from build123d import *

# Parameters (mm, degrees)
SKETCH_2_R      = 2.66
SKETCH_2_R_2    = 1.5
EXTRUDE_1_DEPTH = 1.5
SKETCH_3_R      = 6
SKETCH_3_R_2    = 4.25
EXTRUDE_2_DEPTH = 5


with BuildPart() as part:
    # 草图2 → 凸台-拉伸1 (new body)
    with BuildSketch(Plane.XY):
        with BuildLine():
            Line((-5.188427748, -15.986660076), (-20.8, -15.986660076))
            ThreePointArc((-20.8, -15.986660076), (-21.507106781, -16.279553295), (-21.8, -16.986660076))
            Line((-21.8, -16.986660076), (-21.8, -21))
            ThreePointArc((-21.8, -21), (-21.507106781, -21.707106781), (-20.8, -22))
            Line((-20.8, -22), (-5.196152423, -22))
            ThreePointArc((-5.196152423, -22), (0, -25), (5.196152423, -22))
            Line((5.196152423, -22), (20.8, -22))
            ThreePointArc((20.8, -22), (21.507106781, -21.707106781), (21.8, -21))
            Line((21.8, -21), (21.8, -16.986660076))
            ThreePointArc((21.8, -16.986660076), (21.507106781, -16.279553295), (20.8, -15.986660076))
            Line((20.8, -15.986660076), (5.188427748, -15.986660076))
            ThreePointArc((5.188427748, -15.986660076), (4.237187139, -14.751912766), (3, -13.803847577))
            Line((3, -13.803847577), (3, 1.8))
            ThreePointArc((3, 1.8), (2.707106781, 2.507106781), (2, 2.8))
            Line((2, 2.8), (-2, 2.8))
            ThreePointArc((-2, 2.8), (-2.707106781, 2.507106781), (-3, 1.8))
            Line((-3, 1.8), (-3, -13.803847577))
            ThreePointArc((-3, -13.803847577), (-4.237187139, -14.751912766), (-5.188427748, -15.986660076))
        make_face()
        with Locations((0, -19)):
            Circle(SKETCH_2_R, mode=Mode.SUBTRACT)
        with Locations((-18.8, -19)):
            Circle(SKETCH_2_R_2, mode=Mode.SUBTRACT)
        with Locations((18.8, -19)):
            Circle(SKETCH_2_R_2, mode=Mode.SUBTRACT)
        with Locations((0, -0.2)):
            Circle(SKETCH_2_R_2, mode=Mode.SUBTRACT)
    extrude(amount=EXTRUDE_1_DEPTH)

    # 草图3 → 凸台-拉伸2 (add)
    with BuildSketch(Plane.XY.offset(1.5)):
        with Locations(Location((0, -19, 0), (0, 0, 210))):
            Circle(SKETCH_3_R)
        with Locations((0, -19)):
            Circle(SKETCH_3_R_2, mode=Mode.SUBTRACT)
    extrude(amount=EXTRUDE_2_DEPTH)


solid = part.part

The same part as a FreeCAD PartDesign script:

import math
import FreeCAD as App
import Part
import Sketcher
Q = App.Units.Quantity

doc = App.newDocument("Part")
body = doc.addObject("PartDesign::Body", "Body")

# Sketch on XY plane
sketch1 = body.newObject("Sketcher::SketchObject", "Sketch")
sketch1.AttachmentSupport = (doc.getObject("XY_Plane"), [""])
sketch1.MapMode = "FlatFace"
sketch1.addGeometry([
    Part.LineSegment(App.Vector(-5.2, -16, 0), App.Vector(-20.8, -16, 0)),  # 0
    Part.ArcOfCircle(Part.Circle(App.Vector(-20.8, -17, 0), App.Vector(0, 0, 1), 1), math.radians(90), math.radians(180)),  # 1
    Part.LineSegment(App.Vector(-21.8, -17, 0), App.Vector(-21.8, -21, 0)),  # 2
    Part.ArcOfCircle(Part.Circle(App.Vector(-20.8, -21, 0), App.Vector(0, 0, 1), 1), math.radians(-180), math.radians(-90)),  # 3
    Part.LineSegment(App.Vector(-20.8, -22, 0), App.Vector(-5.2, -22, 0)),  # 4
    Part.ArcOfCircle(Part.Circle(App.Vector(0, -19, 0), App.Vector(0, 0, 1), 6), math.radians(-150), math.radians(-30)),  # 5
    Part.LineSegment(App.Vector(5.2, -22, 0), App.Vector(20.8, -22, 0)),  # 6
    Part.ArcOfCircle(Part.Circle(App.Vector(20.8, -21, 0), App.Vector(0, 0, 1), 1), math.radians(-90), math.radians(0)),  # 7
    Part.LineSegment(App.Vector(21.8, -21, 0), App.Vector(21.8, -17, 0)),  # 8
    Part.ArcOfCircle(Part.Circle(App.Vector(20.8, -17, 0), App.Vector(0, 0, 1), 1), math.radians(0), math.radians(90)),  # 9
    Part.LineSegment(App.Vector(20.8, -16, 0), App.Vector(5.2, -16, 0)),  # 10
    Part.ArcOfCircle(Part.Circle(App.Vector(0, -19, 0), App.Vector(0, 0, 1), 6), math.radians(30), math.radians(60)),  # 11
    Part.LineSegment(App.Vector(3, -13.8, 0), App.Vector(3, 1.8, 0)),  # 12
    Part.ArcOfCircle(Part.Circle(App.Vector(2, 1.8, 0), App.Vector(0, 0, 1), 1), math.radians(0), math.radians(90)),  # 13
    Part.LineSegment(App.Vector(2, 2.8, 0), App.Vector(-2, 2.8, 0)),  # 14
    Part.ArcOfCircle(Part.Circle(App.Vector(-2, 1.8, 0), App.Vector(0, 0, 1), 1), math.radians(90), math.radians(180)),  # 15
    Part.LineSegment(App.Vector(-3, 1.8, 0), App.Vector(-3, -13.8, 0)),  # 16
    Part.ArcOfCircle(Part.Circle(App.Vector(0, -19, 0), App.Vector(0, 0, 1), 6), math.radians(120), math.radians(150)),  # 17
    Part.Circle(App.Vector(-18.8, -19, 0), App.Vector(0, 0, 1), 1.5),  # 18
    Part.Circle(App.Vector(0, -19, 0), App.Vector(0, 0, 1), 2.7),  # 19
    Part.Circle(App.Vector(18.8, -19, 0), App.Vector(0, 0, 1), 1.5),  # 20
    Part.Circle(App.Vector(0, -0.2, 0), App.Vector(0, 0, 1), 1.5),  # 21
], False)
sketch1.addConstraint([
    Sketcher.Constraint("Tangent", 0, 2, 1, 1),
    Sketcher.Constraint("Tangent", 1, 2, 2, 1),
    Sketcher.Constraint("Tangent", 2, 2, 3, 1),
    Sketcher.Constraint("Tangent", 3, 2, 4, 1),
    Sketcher.Constraint("Coincident", 4, 2, 5, 1),
    Sketcher.Constraint("Coincident", 5, 2, 6, 1),
    Sketcher.Constraint("Tangent", 6, 2, 7, 1),
    Sketcher.Constraint("Tangent", 7, 2, 8, 1),
    Sketcher.Constraint("Tangent", 8, 2, 9, 1),
    Sketcher.Constraint("Tangent", 9, 2, 10, 1),
    Sketcher.Constraint("Coincident", 10, 2, 11, 1),
    Sketcher.Constraint("Coincident", 11, 2, 12, 1),
    Sketcher.Constraint("Tangent", 12, 2, 13, 1),
    Sketcher.Constraint("Tangent", 13, 2, 14, 1),
    Sketcher.Constraint("Tangent", 14, 2, 15, 1),
    Sketcher.Constraint("Tangent", 15, 2, 16, 1),
    Sketcher.Constraint("Coincident", 16, 2, 17, 1),
    Sketcher.Constraint("Coincident", 17, 2, 0, 1),
    Sketcher.Constraint("Horizontal", 0),
    Sketcher.Constraint("Vertical", 2),
    Sketcher.Constraint("Horizontal", 4),
    Sketcher.Constraint("Horizontal", 6),
    Sketcher.Constraint("Vertical", 8),
    Sketcher.Constraint("Horizontal", 10),
    Sketcher.Constraint("Vertical", 12),
    Sketcher.Constraint("Horizontal", 14),
    Sketcher.Constraint("Vertical", 16),
    Sketcher.Constraint("Coincident", 11, 3, 5, 3),
    Sketcher.Constraint("Coincident", 17, 3, 5, 3),
    Sketcher.Constraint("Coincident", 19, 3, 5, 3),
    Sketcher.Constraint("Equal", 1, 3),
    Sketcher.Constraint("Equal", 3, 7),
    Sketcher.Constraint("Equal", 7, 9),
    Sketcher.Constraint("Equal", 5, 11),
    Sketcher.Constraint("Equal", 9, 13),
    Sketcher.Constraint("Equal", 13, 15),
    Sketcher.Constraint("Equal", 11, 17),
    Sketcher.Constraint("Equal", 18, 20),
    Sketcher.Constraint("Equal", 20, 21),
    Sketcher.Constraint("Symmetric", 3, 3, 7, 3, -2),
    Sketcher.Constraint("Symmetric", 18, 3, 20, 3, -2),
    Sketcher.Constraint("Symmetric", 11, 2, 16, 2, -2),
    Sketcher.Constraint("PointOnObject", 21, 3, -2),
    Sketcher.Constraint("Horizontal", 1, 3, 9, 3),
    Sketcher.Constraint("Horizontal", 17, 3, 18, 3),
    Sketcher.Constraint("Equal", 6, 12),
    Sketcher.Constraint("Diameter", 18, Q("3 mm")),
    Sketcher.Constraint("Radius", 1, Q("1 mm")),
    Sketcher.Constraint("Radius", 5, Q("6 mm")),
    Sketcher.Constraint("Diameter", 19, Q("5.32 mm")),
    Sketcher.Constraint("DistanceX", 14, 2, 14, 1, Q("4 mm")),
    Sketcher.Constraint("DistanceY", 3, 3, -1, 1, Q("21 mm")),
    Sketcher.Constraint("DistanceY", 5, 3, -1, 1, Q("19 mm")),
    Sketcher.Constraint("DistanceX", 3, 3, 18, 3, Q("2 mm")),
    Sketcher.Constraint("DistanceY", 21, 3, 13, 3, Q("2 mm")),
    Sketcher.Constraint("DistanceX", 1, 3, -1, 1, Q("20.8 mm")),
    Sketcher.Constraint("DistanceY", 2, 2, 2, 1, Q("4.01334 mm")),
])
pad1 = body.newObject("PartDesign::Pad", "Pad")
pad1.Profile = sketch1
pad1.Length = 1.5

# Sketch on XY plane
sketch2 = body.newObject("Sketcher::SketchObject", "Sketch001")
sketch2.AttachmentSupport = (doc.getObject("XY_Plane"), [""])
sketch2.MapMode = "FlatFace"
sketch2.AttachmentOffset = App.Placement(App.Vector(0, 0, 1.5), App.Rotation())
sketch2.addGeometry([
    Part.Circle(App.Vector(0, -19, 0), App.Vector(0, 0, 1), 6),
    Part.Circle(App.Vector(0, -19, 0), App.Vector(0, 0, 1), 4.2),
], False)
sketch2.addConstraint([
    Sketcher.Constraint("Coincident", 1, 3, 0, 3),
    Sketcher.Constraint("PointOnObject", 0, 3, -2),
    Sketcher.Constraint("Diameter", 0, Q("12 mm")),
    Sketcher.Constraint("Diameter", 1, Q("8.5 mm")),
    Sketcher.Constraint("DistanceY", 0, 3, -1, 1, Q("19 mm")),
])
pad2 = body.newObject("PartDesign::Pad", "Pad001")
pad2.Profile = sketch2
pad2.Length = 5

doc.recompute()
